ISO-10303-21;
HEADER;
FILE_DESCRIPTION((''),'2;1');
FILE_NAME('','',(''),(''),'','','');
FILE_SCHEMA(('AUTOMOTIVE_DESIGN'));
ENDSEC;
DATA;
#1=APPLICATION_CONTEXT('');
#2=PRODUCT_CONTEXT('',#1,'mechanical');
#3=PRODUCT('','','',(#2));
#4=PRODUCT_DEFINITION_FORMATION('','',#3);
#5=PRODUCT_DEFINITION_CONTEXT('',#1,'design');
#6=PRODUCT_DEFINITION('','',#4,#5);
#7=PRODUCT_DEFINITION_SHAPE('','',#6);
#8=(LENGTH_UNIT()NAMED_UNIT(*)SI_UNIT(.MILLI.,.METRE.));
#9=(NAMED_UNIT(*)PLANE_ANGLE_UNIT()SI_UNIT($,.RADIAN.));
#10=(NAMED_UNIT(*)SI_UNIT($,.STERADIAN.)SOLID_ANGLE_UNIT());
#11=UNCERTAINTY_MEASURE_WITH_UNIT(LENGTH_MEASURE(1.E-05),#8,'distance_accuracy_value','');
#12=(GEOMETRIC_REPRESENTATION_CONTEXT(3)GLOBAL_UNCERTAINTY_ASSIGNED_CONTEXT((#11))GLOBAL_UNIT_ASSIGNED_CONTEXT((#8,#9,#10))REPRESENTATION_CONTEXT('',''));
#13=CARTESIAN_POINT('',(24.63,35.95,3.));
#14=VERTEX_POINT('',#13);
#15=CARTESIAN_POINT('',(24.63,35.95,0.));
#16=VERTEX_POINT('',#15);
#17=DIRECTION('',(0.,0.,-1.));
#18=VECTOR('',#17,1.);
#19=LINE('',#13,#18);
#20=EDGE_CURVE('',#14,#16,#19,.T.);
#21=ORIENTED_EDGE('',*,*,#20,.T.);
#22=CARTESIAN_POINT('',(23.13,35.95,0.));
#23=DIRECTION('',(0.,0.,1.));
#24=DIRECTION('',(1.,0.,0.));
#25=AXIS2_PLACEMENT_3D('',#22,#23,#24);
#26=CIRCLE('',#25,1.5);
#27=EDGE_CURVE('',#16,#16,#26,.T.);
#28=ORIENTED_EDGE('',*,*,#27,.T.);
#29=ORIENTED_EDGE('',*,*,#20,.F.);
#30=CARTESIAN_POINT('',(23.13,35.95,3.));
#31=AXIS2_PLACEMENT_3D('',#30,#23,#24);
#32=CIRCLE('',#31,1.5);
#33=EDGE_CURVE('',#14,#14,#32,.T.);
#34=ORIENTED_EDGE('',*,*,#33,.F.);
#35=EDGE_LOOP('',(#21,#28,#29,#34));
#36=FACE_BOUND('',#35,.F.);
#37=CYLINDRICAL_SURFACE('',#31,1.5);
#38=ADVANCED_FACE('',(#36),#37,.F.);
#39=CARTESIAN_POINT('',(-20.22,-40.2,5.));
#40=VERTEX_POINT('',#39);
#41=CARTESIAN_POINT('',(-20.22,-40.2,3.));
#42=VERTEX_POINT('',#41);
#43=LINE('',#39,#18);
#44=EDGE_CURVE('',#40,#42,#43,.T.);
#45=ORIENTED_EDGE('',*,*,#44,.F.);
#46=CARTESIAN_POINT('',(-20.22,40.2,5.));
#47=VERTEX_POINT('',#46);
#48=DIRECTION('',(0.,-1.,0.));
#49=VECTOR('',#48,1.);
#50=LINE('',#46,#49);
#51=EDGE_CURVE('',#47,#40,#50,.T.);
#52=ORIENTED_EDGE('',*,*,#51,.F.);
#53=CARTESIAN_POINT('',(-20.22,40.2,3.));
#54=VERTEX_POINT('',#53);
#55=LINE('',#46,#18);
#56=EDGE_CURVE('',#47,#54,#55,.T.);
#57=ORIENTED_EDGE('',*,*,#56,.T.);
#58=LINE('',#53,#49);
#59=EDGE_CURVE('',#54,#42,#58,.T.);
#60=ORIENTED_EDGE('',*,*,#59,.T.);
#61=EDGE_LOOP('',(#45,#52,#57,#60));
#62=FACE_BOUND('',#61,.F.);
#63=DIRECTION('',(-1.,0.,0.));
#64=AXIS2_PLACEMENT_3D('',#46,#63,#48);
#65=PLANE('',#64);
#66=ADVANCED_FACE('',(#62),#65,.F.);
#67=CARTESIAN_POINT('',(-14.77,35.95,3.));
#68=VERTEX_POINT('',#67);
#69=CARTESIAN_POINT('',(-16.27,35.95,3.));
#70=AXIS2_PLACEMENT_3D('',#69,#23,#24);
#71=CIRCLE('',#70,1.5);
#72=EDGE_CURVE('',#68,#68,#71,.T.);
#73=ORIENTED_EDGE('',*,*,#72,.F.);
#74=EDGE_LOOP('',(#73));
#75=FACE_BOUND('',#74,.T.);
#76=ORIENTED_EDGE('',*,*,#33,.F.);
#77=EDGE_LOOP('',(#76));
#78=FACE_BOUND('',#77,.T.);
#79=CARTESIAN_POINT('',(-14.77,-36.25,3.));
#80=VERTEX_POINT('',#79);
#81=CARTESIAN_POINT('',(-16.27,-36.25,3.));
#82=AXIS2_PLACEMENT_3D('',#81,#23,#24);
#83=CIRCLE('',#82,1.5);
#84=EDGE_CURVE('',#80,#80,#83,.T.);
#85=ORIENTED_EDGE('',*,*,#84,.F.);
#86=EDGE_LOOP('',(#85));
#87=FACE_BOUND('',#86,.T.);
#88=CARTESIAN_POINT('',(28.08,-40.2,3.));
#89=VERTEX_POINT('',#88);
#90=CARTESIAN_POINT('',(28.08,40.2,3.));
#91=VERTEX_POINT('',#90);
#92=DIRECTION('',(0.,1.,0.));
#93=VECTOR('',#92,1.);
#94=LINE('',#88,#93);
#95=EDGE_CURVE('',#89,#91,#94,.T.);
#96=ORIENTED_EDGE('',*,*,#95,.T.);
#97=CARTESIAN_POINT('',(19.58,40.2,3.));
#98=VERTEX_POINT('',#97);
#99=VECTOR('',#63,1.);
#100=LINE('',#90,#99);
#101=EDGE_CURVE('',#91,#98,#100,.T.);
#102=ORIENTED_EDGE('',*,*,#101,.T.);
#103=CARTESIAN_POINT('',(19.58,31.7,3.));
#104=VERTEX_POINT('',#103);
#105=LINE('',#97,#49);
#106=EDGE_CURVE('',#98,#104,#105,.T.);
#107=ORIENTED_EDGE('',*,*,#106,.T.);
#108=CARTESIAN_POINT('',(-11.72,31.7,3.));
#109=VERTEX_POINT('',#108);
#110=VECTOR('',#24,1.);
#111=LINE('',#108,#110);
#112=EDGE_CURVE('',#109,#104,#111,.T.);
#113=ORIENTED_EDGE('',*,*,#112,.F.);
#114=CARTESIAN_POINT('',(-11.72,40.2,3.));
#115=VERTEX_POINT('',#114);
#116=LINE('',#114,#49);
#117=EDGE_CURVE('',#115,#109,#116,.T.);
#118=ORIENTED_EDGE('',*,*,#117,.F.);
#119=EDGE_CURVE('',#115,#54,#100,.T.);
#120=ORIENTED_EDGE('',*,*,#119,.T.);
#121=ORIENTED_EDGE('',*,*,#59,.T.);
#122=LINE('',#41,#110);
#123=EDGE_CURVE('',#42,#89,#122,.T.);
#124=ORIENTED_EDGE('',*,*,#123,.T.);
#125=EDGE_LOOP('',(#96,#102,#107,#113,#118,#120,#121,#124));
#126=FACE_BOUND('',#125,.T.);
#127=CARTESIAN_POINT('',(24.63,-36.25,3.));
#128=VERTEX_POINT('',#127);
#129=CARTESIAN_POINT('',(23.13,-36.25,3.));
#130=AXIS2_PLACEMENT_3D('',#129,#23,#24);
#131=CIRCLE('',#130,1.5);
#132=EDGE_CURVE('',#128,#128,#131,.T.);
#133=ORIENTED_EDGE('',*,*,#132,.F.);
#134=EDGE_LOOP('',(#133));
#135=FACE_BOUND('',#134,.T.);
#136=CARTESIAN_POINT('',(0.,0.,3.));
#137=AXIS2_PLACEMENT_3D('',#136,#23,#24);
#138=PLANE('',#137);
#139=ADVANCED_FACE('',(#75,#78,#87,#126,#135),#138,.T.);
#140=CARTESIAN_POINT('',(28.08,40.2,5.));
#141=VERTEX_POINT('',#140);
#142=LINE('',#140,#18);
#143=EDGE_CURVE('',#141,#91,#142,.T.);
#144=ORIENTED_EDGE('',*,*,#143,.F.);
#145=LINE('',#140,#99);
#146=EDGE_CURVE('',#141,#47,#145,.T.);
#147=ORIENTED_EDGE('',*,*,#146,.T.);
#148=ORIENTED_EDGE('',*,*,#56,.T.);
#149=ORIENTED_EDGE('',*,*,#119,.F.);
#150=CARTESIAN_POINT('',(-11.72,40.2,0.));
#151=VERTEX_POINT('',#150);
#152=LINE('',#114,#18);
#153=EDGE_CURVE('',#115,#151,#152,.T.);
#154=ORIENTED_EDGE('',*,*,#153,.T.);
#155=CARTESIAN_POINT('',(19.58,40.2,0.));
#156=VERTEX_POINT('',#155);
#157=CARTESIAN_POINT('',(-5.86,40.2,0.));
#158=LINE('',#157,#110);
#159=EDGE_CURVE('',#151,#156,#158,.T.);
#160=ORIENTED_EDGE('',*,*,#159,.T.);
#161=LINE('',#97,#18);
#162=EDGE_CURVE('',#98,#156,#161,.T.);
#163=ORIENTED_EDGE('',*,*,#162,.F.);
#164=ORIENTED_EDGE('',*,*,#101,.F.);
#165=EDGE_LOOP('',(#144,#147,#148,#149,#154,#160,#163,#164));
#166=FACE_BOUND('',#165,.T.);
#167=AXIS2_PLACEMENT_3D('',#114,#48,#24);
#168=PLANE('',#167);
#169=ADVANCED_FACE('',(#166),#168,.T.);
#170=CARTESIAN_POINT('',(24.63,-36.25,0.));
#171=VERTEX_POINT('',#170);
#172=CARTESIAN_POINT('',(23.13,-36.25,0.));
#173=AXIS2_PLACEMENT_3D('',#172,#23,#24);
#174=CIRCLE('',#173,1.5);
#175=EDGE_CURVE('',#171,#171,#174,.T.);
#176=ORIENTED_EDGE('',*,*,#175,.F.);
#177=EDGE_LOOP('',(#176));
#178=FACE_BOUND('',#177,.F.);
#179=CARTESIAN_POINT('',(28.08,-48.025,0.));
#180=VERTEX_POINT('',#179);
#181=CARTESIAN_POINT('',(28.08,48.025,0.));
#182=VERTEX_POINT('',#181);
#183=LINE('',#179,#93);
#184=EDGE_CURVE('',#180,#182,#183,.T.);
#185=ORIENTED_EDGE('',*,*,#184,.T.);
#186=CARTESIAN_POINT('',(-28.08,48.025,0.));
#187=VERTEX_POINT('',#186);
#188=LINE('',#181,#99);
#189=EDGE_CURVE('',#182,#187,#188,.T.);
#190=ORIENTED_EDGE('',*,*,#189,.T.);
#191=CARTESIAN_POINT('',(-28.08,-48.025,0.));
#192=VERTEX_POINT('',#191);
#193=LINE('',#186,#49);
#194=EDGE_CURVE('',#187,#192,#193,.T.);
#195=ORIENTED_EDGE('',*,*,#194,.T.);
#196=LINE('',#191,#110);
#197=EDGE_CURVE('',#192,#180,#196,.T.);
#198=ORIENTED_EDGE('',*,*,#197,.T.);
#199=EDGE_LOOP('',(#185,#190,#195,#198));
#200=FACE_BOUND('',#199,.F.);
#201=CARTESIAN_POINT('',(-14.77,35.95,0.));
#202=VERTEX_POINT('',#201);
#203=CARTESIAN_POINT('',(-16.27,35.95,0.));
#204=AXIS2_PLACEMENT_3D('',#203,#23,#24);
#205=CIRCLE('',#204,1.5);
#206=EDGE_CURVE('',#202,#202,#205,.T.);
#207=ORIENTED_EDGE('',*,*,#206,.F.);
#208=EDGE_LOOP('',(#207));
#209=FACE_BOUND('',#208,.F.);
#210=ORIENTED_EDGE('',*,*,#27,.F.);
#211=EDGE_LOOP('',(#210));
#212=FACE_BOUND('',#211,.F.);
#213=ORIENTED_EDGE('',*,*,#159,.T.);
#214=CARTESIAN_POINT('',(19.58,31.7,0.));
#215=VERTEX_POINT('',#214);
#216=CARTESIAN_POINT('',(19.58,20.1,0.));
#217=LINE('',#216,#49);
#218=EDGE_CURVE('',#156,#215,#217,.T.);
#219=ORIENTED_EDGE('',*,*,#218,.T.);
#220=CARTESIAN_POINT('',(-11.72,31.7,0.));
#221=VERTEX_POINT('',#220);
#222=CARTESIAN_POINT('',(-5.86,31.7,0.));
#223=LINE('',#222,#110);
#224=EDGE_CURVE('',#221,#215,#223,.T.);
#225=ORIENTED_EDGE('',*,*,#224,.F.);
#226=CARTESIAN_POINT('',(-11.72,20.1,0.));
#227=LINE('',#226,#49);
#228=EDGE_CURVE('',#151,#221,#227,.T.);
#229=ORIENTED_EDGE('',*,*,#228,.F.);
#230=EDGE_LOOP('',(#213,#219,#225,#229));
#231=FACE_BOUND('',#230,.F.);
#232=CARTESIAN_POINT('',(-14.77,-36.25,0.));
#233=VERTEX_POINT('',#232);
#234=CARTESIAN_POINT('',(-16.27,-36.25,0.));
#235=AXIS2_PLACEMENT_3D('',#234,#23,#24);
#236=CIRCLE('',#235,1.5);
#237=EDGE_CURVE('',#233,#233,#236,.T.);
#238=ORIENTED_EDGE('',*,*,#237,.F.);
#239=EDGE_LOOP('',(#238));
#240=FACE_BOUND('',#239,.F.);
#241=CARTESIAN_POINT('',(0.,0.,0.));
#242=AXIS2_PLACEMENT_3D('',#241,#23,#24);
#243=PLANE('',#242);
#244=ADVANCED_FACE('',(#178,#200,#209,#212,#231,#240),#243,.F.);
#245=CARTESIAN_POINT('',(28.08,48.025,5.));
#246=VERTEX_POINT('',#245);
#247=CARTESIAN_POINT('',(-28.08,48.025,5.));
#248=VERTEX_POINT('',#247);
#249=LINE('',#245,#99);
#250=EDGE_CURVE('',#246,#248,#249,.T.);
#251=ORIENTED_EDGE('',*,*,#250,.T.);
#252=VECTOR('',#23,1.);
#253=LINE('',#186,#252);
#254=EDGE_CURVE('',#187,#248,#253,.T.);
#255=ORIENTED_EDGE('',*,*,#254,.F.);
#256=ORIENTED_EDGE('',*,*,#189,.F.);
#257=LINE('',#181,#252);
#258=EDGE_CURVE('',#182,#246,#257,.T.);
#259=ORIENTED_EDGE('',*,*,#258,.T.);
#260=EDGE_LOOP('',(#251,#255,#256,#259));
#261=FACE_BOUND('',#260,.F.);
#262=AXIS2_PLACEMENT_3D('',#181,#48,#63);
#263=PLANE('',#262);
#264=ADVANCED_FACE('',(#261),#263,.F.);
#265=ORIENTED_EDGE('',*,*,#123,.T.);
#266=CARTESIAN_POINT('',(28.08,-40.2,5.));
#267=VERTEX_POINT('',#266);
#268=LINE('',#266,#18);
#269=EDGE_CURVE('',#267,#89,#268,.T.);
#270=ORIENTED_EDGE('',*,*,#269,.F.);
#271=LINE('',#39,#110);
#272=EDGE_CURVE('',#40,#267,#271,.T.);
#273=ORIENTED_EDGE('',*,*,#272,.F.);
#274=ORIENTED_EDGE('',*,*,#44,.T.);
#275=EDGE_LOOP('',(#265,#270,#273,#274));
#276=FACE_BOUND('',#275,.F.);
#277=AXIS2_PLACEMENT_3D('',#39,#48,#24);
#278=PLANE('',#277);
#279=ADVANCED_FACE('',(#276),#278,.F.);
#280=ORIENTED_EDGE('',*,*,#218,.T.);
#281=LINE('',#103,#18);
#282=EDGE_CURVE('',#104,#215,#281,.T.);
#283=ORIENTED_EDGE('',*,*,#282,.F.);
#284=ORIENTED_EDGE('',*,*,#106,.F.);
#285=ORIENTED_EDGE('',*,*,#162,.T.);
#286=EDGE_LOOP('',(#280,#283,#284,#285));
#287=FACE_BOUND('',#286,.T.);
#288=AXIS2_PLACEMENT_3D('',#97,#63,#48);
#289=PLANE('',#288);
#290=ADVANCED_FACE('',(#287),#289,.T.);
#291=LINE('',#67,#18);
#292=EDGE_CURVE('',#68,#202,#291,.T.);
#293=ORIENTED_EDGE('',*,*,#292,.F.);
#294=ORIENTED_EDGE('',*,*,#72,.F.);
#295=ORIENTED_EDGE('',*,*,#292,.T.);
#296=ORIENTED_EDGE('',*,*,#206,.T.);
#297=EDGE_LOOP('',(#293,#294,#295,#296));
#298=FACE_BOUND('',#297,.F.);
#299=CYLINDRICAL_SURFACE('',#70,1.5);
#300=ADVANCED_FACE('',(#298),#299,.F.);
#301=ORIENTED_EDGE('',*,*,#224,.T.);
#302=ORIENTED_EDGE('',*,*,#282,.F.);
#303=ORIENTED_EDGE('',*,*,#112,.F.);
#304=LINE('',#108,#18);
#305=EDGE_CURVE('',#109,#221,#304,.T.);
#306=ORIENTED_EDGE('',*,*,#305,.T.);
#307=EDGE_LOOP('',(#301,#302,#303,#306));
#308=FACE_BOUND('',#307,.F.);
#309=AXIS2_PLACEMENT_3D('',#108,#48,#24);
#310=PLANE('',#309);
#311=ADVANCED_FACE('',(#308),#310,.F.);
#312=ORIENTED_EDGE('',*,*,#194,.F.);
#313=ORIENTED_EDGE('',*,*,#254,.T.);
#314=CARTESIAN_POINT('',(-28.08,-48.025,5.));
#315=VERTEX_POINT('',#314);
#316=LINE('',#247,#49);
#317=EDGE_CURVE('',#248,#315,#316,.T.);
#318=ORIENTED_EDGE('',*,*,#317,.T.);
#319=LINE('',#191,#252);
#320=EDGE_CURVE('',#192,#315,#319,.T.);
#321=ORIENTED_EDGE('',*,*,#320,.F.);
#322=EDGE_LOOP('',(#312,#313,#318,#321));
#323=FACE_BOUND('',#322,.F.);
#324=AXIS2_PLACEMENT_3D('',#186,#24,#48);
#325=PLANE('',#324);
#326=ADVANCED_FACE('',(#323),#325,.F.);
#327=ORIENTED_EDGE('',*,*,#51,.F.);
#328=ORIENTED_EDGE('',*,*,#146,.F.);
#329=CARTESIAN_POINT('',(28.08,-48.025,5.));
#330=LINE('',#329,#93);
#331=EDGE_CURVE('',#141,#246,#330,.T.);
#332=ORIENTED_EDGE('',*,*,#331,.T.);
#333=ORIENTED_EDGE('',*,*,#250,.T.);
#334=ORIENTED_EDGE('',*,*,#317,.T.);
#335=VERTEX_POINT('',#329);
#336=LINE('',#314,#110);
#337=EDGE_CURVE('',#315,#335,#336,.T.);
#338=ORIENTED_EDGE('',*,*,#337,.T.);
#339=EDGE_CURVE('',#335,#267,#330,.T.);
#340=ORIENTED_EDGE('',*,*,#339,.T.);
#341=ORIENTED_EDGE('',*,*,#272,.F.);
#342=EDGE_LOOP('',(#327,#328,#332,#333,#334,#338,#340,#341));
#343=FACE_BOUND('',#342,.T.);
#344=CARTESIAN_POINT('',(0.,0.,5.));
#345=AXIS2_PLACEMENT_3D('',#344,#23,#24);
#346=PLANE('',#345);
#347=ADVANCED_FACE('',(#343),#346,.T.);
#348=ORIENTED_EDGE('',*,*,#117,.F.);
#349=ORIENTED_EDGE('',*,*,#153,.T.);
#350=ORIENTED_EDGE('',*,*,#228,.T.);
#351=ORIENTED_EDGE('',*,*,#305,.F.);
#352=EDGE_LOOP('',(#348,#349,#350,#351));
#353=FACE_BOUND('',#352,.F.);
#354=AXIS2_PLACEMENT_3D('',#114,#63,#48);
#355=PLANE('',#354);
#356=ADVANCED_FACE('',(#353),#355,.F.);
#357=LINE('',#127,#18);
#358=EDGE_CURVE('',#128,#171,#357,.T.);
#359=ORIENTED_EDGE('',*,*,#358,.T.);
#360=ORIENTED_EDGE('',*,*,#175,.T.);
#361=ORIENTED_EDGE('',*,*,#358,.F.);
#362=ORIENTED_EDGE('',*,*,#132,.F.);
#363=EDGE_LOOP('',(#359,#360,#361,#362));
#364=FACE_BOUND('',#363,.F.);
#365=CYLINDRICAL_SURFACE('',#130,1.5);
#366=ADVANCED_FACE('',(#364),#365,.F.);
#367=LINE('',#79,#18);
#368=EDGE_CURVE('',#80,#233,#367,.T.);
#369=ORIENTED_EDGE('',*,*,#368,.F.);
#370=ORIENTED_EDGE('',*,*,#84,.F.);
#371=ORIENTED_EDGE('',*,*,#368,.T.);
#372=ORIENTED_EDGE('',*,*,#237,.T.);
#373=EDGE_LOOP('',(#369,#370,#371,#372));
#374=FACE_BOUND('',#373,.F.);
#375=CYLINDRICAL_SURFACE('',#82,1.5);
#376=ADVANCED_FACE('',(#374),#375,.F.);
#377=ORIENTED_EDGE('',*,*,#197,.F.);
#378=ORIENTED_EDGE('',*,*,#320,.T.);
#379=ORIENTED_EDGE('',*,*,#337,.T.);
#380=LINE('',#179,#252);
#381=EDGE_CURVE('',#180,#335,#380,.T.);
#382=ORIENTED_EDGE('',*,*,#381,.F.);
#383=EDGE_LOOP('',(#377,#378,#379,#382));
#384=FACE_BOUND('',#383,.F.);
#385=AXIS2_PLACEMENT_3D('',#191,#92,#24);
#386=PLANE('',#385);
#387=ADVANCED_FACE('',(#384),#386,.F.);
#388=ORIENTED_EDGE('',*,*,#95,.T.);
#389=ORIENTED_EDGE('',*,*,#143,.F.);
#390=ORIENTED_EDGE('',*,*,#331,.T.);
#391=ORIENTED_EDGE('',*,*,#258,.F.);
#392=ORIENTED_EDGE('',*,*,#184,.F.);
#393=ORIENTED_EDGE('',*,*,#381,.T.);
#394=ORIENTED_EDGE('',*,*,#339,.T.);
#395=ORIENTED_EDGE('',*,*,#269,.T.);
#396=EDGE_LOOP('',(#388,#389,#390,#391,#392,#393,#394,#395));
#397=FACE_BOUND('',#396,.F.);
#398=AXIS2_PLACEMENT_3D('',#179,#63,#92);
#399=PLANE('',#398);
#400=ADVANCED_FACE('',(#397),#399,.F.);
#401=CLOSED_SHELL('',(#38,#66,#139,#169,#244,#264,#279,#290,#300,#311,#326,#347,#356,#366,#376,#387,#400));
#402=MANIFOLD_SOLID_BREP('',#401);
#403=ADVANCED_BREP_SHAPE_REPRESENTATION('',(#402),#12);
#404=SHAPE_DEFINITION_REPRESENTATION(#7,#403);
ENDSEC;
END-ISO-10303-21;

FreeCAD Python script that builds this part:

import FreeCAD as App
import Part
import Sketcher


def add_polygon(sketch, points):
    """Adds a closed chain of lines whose ends are joined by coincident constraints."""
    first, n = sketch.GeometryCount, len(points)
    for a, b in zip(points, points[1:] + points[:1]):
        sketch.addGeometry(Part.LineSegment(App.Vector(*a, 0), App.Vector(*b, 0)), False)
    for i in range(n):
        sketch.addConstraint(Sketcher.Constraint("Coincident", first + i, 2, first + (i + 1) % n, 1))

doc = App.newDocument("Part")
params = doc.addObject("Spreadsheet::Sheet", "Params")
for row, (alias, value) in enumerate([
    ("sketch1_width", "56.16 mm"),
    ("sketch1_height", "96.05 mm"),
    ("pad1_length", "5 mm"),
    ("sketch2_width", "48.3 mm"),
    ("sketch2_height", "80.4 mm"),
    ("pocket1_length", "2 mm"),
    ("sketch3_diameter", "3 mm"),
    ("sketch3_height", "8.5 mm"),
    ("sketch3_width", "31.3 mm"),
    ("pocket2_length", "5 mm"),
], start=1):
    params.set(f"A{row}", alias)
    params.set(f"B{row}", "=" + value)
    params.setAlias(f"B{row}", alias)

body = doc.addObject("PartDesign::Body", "Body")

sketch1 = doc.addObject("Sketcher::SketchObject", "Sketch")
body.addObject(sketch1)
sketch1.AttachmentSupport = (doc.XY_Plane, [""])
sketch1.MapMode = "FlatFace"
add_polygon(sketch1, [(-28.08, 48.025), (-28.08, -48.025), (28.08, -48.025), (28.08, 48.025)])
sketch1.addConstraint([
    Sketcher.Constraint("Vertical", 0),
    Sketcher.Constraint("Horizontal", 1),
    Sketcher.Constraint("Vertical", 2),
    Sketcher.Constraint("Horizontal", 3),
    Sketcher.Constraint("Symmetric", 0, 2, 2, 2, -1, 1),
    Sketcher.Constraint("DistanceX", 1, 1, 1, 2, 56.16),
    Sketcher.Constraint("DistanceY", 0, 2, 0, 1, 96.05),
])
sketch1.setExpression("Constraints[9]", "Params.sketch1_width")
sketch1.setExpression("Constraints[10]", "Params.sketch1_height")
pad1 = doc.addObject("PartDesign::Pad", "Pad")
body.addObject(pad1)
pad1.Profile = sketch1
pad1.setExpression("Length", "Params.pad1_length")

sketch2 = doc.addObject("Sketcher::SketchObject", "Sketch001")
body.addObject(sketch2)
sketch2.AttachmentSupport = (doc.XY_Plane, [""])
sketch2.MapMode = "FlatFace"
sketch2.AttachmentOffset = App.Placement(App.Vector(0, 0, 5), App.Rotation())
add_polygon(sketch2, [(-20.22, 40.2), (-20.22, -40.2), (28.08, -40.2), (28.08, 40.2)])
sketch2.addConstraint([
    Sketcher.Constraint("Vertical", 0),
    Sketcher.Constraint("Horizontal", 1),
    Sketcher.Constraint("Vertical", 2),
    Sketcher.Constraint("Horizontal", 3),
    Sketcher.Constraint("DistanceX", 1, 1, 1, 2, 48.3),
    Sketcher.Constraint("DistanceY", 0, 2, 0, 1, 80.4),
    Sketcher.Constraint("DistanceY", 0, 2, -1, 1, 40.2),
    Sketcher.Constraint("DistanceX", 0, 2, -1, 1, 20.22),
])
sketch2.setExpression("Constraints[8]", "Params.sketch2_width")
sketch2.setExpression("Constraints[9]", "Params.sketch2_height")
pocket1 = doc.addObject("PartDesign::Pocket", "Pocket")
body.addObject(pocket1)
pocket1.Profile = sketch2
pocket1.setExpression("Length", "Params.pocket1_length")

sketch3 = doc.addObject("Sketcher::SketchObject", "Sketch002")
body.addObject(sketch3)
sketch3.AttachmentSupport = (doc.XY_Plane, [""])
sketch3.MapMode = "FlatFace"
sketch3.AttachmentOffset = App.Placement(App.Vector(0, 0, 3), App.Rotation())
add_polygon(sketch3, [(-11.72, 40.2), (-11.72, 31.7), (19.58, 31.7), (19.58, 40.2)])
sketch3.addGeometry(Part.Circle(App.Vector(-16.27, 35.95, 0), App.Vector(0, 0, 1), 1.5), False)
sketch3.addGeometry(Part.Circle(App.Vector(23.13, 35.95, 0), App.Vector(0, 0, 1), 1.5), False)
sketch3.addGeometry(Part.Circle(App.Vector(-16.27, -36.25, 0), App.Vector(0, 0, 1), 1.5), False)
sketch3.addGeometry(Part.Circle(App.Vector(23.13, -36.25, 0), App.Vector(0, 0, 1), 1.5), False)
sketch3.addConstraint([
    Sketcher.Constraint("Vertical", 0),
    Sketcher.Constraint("Horizontal", 1),
    Sketcher.Constraint("Vertical", 2),
    Sketcher.Constraint("Horizontal", 3),
    Sketcher.Constraint("Equal", 4, 5),
    Sketcher.Constraint("Equal", 5, 6),
    Sketcher.Constraint("Equal", 6, 7),
    Sketcher.Constraint("Horizontal", 4, 3, 5, 3),
    Sketcher.Constraint("Horizontal", 6, 3, 7, 3),
    Sketcher.Constraint("Vertical", 4, 3, 6, 3),
    Sketcher.Constraint("Vertical", 5, 3, 7, 3),
    Sketcher.Constraint("Diameter", 4, 3.0),
    Sketcher.Constraint("DistanceY", 0, 2, 0, 1, 8.5),
    Sketcher.Constraint("DistanceY", 0, 2, 4, 3, 4.25),
    Sketcher.Constraint("DistanceX", 1, 1, 1, 2, 31.3),
    Sketcher.Constraint("DistanceY", -1, 1, 0, 2, 31.7),
    Sketcher.Constraint("DistanceX", 4, 3, 5, 3, 39.4),
    Sketcher.Constraint("DistanceY", 6, 3, 4, 3, 72.2),
    Sketcher.Constraint("DistanceX", 4, 3, -1, 1, 16.27),
    Sketcher.Constraint("DistanceX", 0, 2, -1, 1, 11.72),
])
sketch3.setExpression("Constraints[15]", "Params.sketch3_diameter")
sketch3.setExpression("Constraints[16]", "Params.sketch3_height")
sketch3.setExpression("Constraints[18]", "Params.sketch3_width")
pocket2 = doc.addObject("PartDesign::Pocket", "Pocket001")
body.addObject(pocket2)
pocket2.Profile = sketch3
pocket2.setExpression("Length", "Params.pocket2_length")

doc.recompute()
